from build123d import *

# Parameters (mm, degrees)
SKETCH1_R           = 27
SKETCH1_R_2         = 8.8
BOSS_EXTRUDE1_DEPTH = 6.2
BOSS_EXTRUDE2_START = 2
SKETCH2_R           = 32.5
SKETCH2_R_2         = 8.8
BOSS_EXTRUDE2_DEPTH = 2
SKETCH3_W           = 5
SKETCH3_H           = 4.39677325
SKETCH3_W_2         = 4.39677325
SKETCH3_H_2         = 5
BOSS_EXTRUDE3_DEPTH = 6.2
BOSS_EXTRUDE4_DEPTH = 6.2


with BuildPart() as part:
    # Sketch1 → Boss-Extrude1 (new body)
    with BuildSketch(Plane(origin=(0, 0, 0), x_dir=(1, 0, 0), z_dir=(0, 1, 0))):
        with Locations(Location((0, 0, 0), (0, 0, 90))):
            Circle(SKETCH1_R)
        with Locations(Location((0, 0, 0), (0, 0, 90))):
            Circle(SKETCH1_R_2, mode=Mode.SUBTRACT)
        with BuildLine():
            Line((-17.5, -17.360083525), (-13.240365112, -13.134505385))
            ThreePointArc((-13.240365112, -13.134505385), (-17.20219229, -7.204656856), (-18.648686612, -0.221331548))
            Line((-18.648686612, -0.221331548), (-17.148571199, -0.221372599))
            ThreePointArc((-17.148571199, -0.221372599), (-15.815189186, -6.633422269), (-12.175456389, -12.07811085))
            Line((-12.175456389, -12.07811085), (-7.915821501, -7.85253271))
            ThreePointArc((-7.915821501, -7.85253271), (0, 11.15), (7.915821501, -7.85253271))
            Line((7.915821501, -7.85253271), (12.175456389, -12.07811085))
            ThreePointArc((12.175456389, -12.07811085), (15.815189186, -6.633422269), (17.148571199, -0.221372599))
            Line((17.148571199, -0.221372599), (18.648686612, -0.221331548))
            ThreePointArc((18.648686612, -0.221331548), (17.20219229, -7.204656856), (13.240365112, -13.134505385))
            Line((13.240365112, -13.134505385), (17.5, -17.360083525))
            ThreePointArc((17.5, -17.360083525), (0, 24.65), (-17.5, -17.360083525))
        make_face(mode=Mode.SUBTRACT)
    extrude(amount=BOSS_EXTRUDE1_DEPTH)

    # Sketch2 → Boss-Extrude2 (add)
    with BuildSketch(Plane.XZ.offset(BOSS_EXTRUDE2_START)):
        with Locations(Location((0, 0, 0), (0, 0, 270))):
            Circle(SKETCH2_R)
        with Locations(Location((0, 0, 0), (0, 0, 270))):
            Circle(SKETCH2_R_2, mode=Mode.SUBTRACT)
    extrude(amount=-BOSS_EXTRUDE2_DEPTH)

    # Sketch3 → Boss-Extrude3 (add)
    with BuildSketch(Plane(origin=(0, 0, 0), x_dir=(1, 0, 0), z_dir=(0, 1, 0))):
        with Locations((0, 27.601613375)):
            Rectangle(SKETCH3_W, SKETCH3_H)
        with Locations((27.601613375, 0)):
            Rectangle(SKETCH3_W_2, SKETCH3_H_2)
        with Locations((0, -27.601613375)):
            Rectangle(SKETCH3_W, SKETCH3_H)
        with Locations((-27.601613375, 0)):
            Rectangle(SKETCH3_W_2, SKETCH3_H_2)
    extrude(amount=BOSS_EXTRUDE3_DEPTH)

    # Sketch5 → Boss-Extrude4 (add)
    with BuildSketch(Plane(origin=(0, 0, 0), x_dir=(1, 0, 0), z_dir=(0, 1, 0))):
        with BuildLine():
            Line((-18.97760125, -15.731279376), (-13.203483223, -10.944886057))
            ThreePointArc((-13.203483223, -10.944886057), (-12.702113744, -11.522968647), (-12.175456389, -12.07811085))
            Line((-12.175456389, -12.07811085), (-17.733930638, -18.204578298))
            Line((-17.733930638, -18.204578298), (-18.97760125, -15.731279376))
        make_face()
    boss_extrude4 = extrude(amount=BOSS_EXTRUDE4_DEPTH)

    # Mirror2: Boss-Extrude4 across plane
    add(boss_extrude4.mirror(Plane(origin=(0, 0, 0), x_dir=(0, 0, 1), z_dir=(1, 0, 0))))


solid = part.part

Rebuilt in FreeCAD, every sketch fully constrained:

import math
import FreeCAD as App
import Part
import Sketcher
from FreeCAD import Vector
Q = App.Units.Quantity

doc = App.newDocument("Part")
body = doc.addObject("PartDesign::Body", "Body")

sketch1 = body.newObject("Sketcher::SketchObject", "Sketch")
sketch1.AttachmentSupport = (doc.getObject("XZ_Plane"), [""])
sketch1.MapMode = "FlatFace"
sketch1.addGeometry([
    Part.Circle(Vector(0, 0, 0), Vector(0, 0, 1), 27),
    Part.Circle(Vector(0, 0, 0), Vector(0, 0, 1), 8.8),
    Part.LineSegment(Vector(-13.2, 13.1, 0), Vector(-17.5, 17.4, 0)),
    Part.ArcOfCircle(Part.Circle(Vector(0, 0, 0), Vector(0, 0, 1), 24.6), math.radians(135), math.radians(405)),
    Part.LineSegment(Vector(17.5, 17.4, 0), Vector(13.2, 13.1, 0)),
    Part.ArcOfCircle(Part.Circle(Vector(0, 0, 0), Vector(0, 0, 1), 18.7), math.radians(1), math.radians(45)),
    Part.LineSegment(Vector(18.6, 0.2, 0), Vector(17.1, 0.2, 0)),
    Part.ArcOfCircle(Part.Circle(Vector(0, 0, 0), Vector(0, 0, 1), 17.2), math.radians(1), math.radians(45)),
    Part.LineSegment(Vector(12.2, 12.1, 0), Vector(7.9, 7.9, 0)),
    Part.ArcOfCircle(Part.Circle(Vector(0, 0, 0), Vector(0, 0, 1), 11.2), math.radians(135), math.radians(405)),
    Part.LineSegment(Vector(-7.9, 7.9, 0), Vector(-12.2, 12.1, 0)),
    Part.ArcOfCircle(Part.Circle(Vector(0, 0, 0), Vector(0, 0, 1), 17.2), math.radians(135), math.radians(179)),
    Part.LineSegment(Vector(-17.1, 0.2, 0), Vector(-18.6, 0.2, 0)),
    Part.ArcOfCircle(Part.Circle(Vector(0, 0, 0), Vector(0, 0, 1), 18.7), math.radians(135), math.radians(179)),
], False)
sketch1.addConstraint([
    Sketcher.Constraint("Coincident", 2, 2, 3, 1),
    Sketcher.Constraint("Coincident", 3, 2, 4, 1),
    Sketcher.Constraint("Coincident", 4, 2, 5, 2),
    Sketcher.Constraint("Coincident", 5, 1, 6, 1),
    Sketcher.Constraint("Coincident", 6, 2, 7, 1),
    Sketcher.Constraint("Coincident", 7, 2, 8, 1),
    Sketcher.Constraint("Coincident", 8, 2, 9, 2),
    Sketcher.Constraint("Coincident", 9, 1, 10, 1),
    Sketcher.Constraint("Coincident", 10, 2, 11, 1),
    Sketcher.Constraint("Coincident", 11, 2, 12, 1),
    Sketcher.Constraint("Coincident", 12, 2, 13, 2),
    Sketcher.Constraint("Coincident", 13, 1, 2, 1),
    Sketcher.Constraint("Coincident", 0, 3, -1, 1),
    Sketcher.Constraint("Coincident", 1, 3, -1, 1),
    Sketcher.Constraint("Coincident", 3, 3, -1, 1),
    Sketcher.Constraint("Coincident", 5, 3, -1, 1),
    Sketcher.Constraint("Coincident", 7, 3, -1, 1),
    Sketcher.Constraint("Coincident", 9, 3, -1, 1),
    Sketcher.Constraint("Coincident", 11, 3, -1, 1),
    Sketcher.Constraint("Coincident", 13, 3, -1, 1),
    Sketcher.Constraint("Equal", 7, 11),
    Sketcher.Constraint("Equal", 5, 13),
    Sketcher.Constraint("Parallel", 4, 8),
    Sketcher.Constraint("Parallel", 2, 10),
    Sketcher.Constraint("Horizontal", 2, 2, 3, 2),
    Sketcher.Constraint("Horizontal", 8, 2, 9, 1),
    Sketcher.Constraint("Horizontal", 7, 2, 10, 2),
    Sketcher.Constraint("Horizontal", 6, 2, 11, 2),
    Sketcher.Constraint("Horizontal", 5, 1, 12, 2),
    Sketcher.Constraint("Equal", 4, 8),
    Sketcher.Constraint("Diameter", 0, Q("54 mm")),
    Sketcher.Constraint("Diameter", 1, Q("17.6 mm")),
    Sketcher.Constraint("Radius", 3, Q("24.65 mm")),
    Sketcher.Constraint("Radius", 5, Q("18.65 mm")),
    Sketcher.Constraint("Radius", 7, Q("17.15 mm")),
    Sketcher.Constraint("DistanceX", 2, 2, -1, 1, Q("17.5 mm")),
    Sketcher.Constraint("DistanceY", 12, 2, 9, 1, Q("7.631201 mm")),
    Sketcher.Constraint("DistanceY", -1, 1, 5, 1, Q("0.221332 mm")),
    Sketcher.Constraint("DistanceX", -1, 1, 6, 2, Q("17.148571 mm")),
    Sketcher.Constraint("DistanceY", -1, 1, 7, 2, Q("12.078111 mm")),
])
pad1 = body.newObject("PartDesign::Pad", "Pad")
pad1.Profile = sketch1
pad1.Length = 6.2
pad1.Reversed = True

sketch2 = body.newObject("Sketcher::SketchObject", "Sketch001")
sketch2.AttachmentSupport = (doc.getObject("XZ_Plane"), [""])
sketch2.MapMode = "FlatFace"
sketch2.AttachmentOffset = App.Placement(Vector(0, 0, 2), App.Rotation())
sketch2.addGeometry([
    Part.Circle(Vector(0, 0, 0), Vector(0, 0, 1), 32),
    Part.Circle(Vector(0, 0, 0), Vector(0, 0, 1), 9),
], False)
sketch2.addConstraint([
    Sketcher.Constraint("Coincident", 0, 3, -1, 1),
    Sketcher.Constraint("Coincident", 1, 3, -1, 1),
    Sketcher.Constraint("Diameter", 0, Q("65 mm")),
    Sketcher.Constraint("Diameter", 1, Q("17.6 mm")),
])
pad2 = body.newObject("PartDesign::Pad", "Pad001")
pad2.Profile = sketch2
pad2.Length = 2
pad2.Reversed = True

sketch3 = body.newObject("Sketcher::SketchObject", "Sketch002")
sketch3.AttachmentSupport = (doc.getObject("XZ_Plane"), [""])
sketch3.MapMode = "FlatFace"
sketch3.addGeometry([
    Part.LineSegment(Vector(-2.5, -29.8, 0), Vector(-2.5, -25.4, 0)),
    Part.LineSegment(Vector(-2.5, -25.4, 0), Vector(2.5, -25.4, 0)),
    Part.LineSegment(Vector(2.5, -25.4, 0), Vector(2.5, -29.8, 0)),
    Part.LineSegment(Vector(2.5, -29.8, 0), Vector(-2.5, -29.8, 0)),
    Part.LineSegment(Vector(25.4, -2.5, 0), Vector(25.4, 2.5, 0)),
    Part.LineSegment(Vector(25.4, 2.5, 0), Vector(29.8, 2.5, 0)),
    Part.LineSegment(Vector(29.8, 2.5, 0), Vector(29.8, -2.5, 0)),
    Part.LineSegment(Vector(29.8, -2.5, 0), Vector(25.4, -2.5, 0)),
    Part.LineSegment(Vector(-2.5, 25.4, 0), Vector(-2.5, 29.8, 0)),
    Part.LineSegment(Vector(-2.5, 29.8, 0), Vector(2.5, 29.8, 0)),
    Part.LineSegment(Vector(2.5, 29.8, 0), Vector(2.5, 25.4, 0)),
    Part.LineSegment(Vector(2.5, 25.4, 0), Vector(-2.5, 25.4, 0)),
    Part.LineSegment(Vector(-29.8, -2.5, 0), Vector(-29.8, 2.5, 0)),
    Part.LineSegment(Vector(-29.8, 2.5, 0), Vector(-25.4, 2.5, 0)),
    Part.LineSegment(Vector(-25.4, 2.5, 0), Vector(-25.4, -2.5, 0)),
    Part.LineSegment(Vector(-25.4, -2.5, 0), Vector(-29.8, -2.5, 0)),
], False)
sketch3.addConstraint([
    Sketcher.Constraint("Coincident", 0, 2, 1, 1),
    Sketcher.Constraint("Coincident", 1, 2, 2, 1),
    Sketcher.Constraint("Coincident", 2, 2, 3, 1),
    Sketcher.Constraint("Coincident", 3, 2, 0, 1),
    Sketcher.Constraint("Coincident", 4, 2, 5, 1),
    Sketcher.Constraint("Coincident", 5, 2, 6, 1),
    Sketcher.Constraint("Coincident", 6, 2, 7, 1),
    Sketcher.Constraint("Coincident", 7, 2, 4, 1),
    Sketcher.Constraint("Coincident", 8, 2, 9, 1),
    Sketcher.Constraint("Coincident", 9, 2, 10, 1),
    Sketcher.Constraint("Coincident", 10, 2, 11, 1),
    Sketcher.Constraint("Coincident", 11, 2, 8, 1),
    Sketcher.Constraint("Coincident", 12, 2, 13, 1),
    Sketcher.Constraint("Coincident", 13, 2, 14, 1),
    Sketcher.Constraint("Coincident", 14, 2, 15, 1),
    Sketcher.Constraint("Coincident", 15, 2, 12, 1),
    Sketcher.Constraint("Vertical", 0),
    Sketcher.Constraint("Horizontal", 1),
    Sketcher.Constraint("Vertical", 2),
    Sketcher.Constraint("Horizontal", 3),
    Sketcher.Constraint("Vertical", 4),
    Sketcher.Constraint("Horizontal", 5),
    Sketcher.Constraint("Vertical", 6),
    Sketcher.Constraint("Horizontal", 7),
    Sketcher.Constraint("Vertical", 8),
    Sketcher.Constraint("Horizontal", 9),
    Sketcher.Constraint("Vertical", 10),
    Sketcher.Constraint("Horizontal", 11),
    Sketcher.Constraint("Vertical", 12),
    Sketcher.Constraint("Horizontal", 13),
    Sketcher.Constraint("Vertical", 14),
    Sketcher.Constraint("Horizontal", 15),
    Sketcher.Constraint("Symmetric", 2, 2, 8, 2, -1, 1),
    Sketcher.Constraint("Symmetric", 0, 2, 10, 2, -1, 1),
    Sketcher.Constraint("Symmetric", 6, 2, 12, 2, -1, 1),
    Sketcher.Constraint("Symmetric", 4, 2, 14, 2, -1, 1),
    Sketcher.Constraint("Horizontal", 5, 2, 12, 2),
    Sketcher.Constraint("Vertical", 3, 2, 8, 2),
    Sketcher.Constraint("Equal", 15, 0),
    Sketcher.Constraint("Equal", 11, 4),
    Sketcher.Constraint("DistanceX", 1, 1, 1, 2, Q("5 mm")),
    Sketcher.Constraint("DistanceY", 2, 2, -1, 1, Q("29.8 mm")),
    Sketcher.Constraint("DistanceX", -1, 1, 5, 2, Q("29.8 mm")),
    Sketcher.Constraint("DistanceX", 5, 1, 5, 2, Q("4.396773 mm")),
])
pad3 = body.newObject("PartDesign::Pad", "Pad002")
pad3.Profile = sketch3
pad3.Length = 6.2
pad3.Reversed = True

sketch4 = body.newObject("Sketcher::SketchObject", "Sketch003")
sketch4.AttachmentSupport = (doc.getObject("XZ_Plane"), [""])
sketch4.MapMode = "FlatFace"
sketch4.addGeometry([
    Part.LineSegment(Vector(-13.2, 10.9, 0), Vector(-19, 15.7, 0)),
    Part.LineSegment(Vector(-19, 15.7, 0), Vector(-17.7, 18.2, 0)),
    Part.LineSegment(Vector(-17.7, 18.2, 0), Vector(-12.2, 12.1, 0)),
    Part.ArcOfCircle(Part.Circle(Vector(0, 0, 0), Vector(0, 0, 1), 17.1), math.radians(135.23), math.radians(140.34)),
], False)
sketch4.addConstraint([
    Sketcher.Constraint("Coincident", 0, 2, 1, 1),
    Sketcher.Constraint("Coincident", 1, 2, 2, 1),
    Sketcher.Constraint("Coincident", 2, 2, 3, 1),
    Sketcher.Constraint("Coincident", 3, 2, 0, 1),
    Sketcher.Constraint("Coincident", 3, 3, -1, 1),
    Sketcher.Constraint("Radius", 3, Q("17.15 mm")),
    Sketcher.Constraint("Distance", 0, Q("7.5 mm")),
    Sketcher.Constraint("DistanceX", 0, 2, -1, 1, Q("18.977601 mm")),
    Sketcher.Constraint("DistanceY", 0, 2, 1, 2, Q("2.473299 mm")),
    Sketcher.Constraint("Distance", 1, Q("2.768379 mm")),
    Sketcher.Constraint("DistanceY", -1, 1, 2, 2, Q("12.078111 mm")),
    Sketcher.Constraint("DistanceX", 0, 2, 3, 2, Q("5.774118 mm")),
])
pad4 = body.newObject("PartDesign::Pad", "Pad003")
pad4.Profile = sketch4
pad4.Length = 6.2
pad4.Reversed = True
doc.recompute()

mirrored = body.newObject("PartDesign::Mirrored", "Mirrored")
mirrored.Originals = [pad4]
mirrored.MirrorPlane = (doc.getObject("YZ_Plane"), [""])
body.Tip = mirrored

doc.recompute()
